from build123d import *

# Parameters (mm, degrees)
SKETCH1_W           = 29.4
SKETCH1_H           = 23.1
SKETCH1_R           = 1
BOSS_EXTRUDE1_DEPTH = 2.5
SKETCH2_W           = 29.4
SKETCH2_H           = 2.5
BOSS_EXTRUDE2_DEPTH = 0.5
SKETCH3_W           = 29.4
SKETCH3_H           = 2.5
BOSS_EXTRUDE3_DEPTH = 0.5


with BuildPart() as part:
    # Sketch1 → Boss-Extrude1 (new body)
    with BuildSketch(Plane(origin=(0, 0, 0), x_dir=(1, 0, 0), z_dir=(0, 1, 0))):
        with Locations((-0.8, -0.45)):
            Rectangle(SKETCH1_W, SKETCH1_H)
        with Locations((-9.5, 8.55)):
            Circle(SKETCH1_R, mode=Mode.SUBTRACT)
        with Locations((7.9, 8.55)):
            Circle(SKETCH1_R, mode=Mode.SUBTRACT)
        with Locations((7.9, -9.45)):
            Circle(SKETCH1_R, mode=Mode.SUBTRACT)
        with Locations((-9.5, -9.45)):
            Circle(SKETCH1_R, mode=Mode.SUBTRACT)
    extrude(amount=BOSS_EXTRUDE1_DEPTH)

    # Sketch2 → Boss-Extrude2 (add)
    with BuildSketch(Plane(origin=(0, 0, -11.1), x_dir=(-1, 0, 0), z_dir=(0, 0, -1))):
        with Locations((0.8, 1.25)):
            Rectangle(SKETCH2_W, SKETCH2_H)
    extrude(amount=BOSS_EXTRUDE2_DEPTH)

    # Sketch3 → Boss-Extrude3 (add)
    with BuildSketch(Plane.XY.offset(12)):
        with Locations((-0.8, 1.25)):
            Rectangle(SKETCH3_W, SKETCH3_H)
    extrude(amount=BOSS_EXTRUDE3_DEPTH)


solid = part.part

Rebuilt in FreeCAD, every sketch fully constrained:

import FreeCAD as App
import Part
import Sketcher

V = App.Vector
Q = App.Units.Quantity

doc = App.newDocument("Part")
body = doc.addObject("PartDesign::Body", "Body")

sketch1 = doc.addObject("Sketcher::SketchObject", "Sketch")
body.addObject(sketch1)
sketch1.AttachmentSupport = (doc.XZ_Plane, [""])
sketch1.MapMode = "FlatFace"
sketch1.addGeometry([
    Part.LineSegment(V(-15.5, -11.1, 0), V(-15.5, 12, 0)),
    Part.LineSegment(V(-15.5, 12, 0), V(13.9, 12, 0)),
    Part.LineSegment(V(13.9, 12, 0), V(13.9, -11.1, 0)),
    Part.LineSegment(V(13.9, -11.1, 0), V(-15.5, -11.1, 0)),
    Part.Circle(V(-9.5, 9.4, 0), V(0, 0, 1), 1),
    Part.Circle(V(7.9, 9.4, 0), V(0, 0, 1), 1),
    Part.Circle(V(-9.5, -8.6, 0), V(0, 0, 1), 1),
    Part.Circle(V(7.9, -8.6, 0), V(0, 0, 1), 1),
], False)
sketch1.addConstraint([
    Sketcher.Constraint("Coincident", 0, 2, 1, 1),
    Sketcher.Constraint("Coincident", 1, 2, 2, 1),
    Sketcher.Constraint("Coincident", 2, 2, 3, 1),
    Sketcher.Constraint("Coincident", 3, 2, 0, 1),
    Sketcher.Constraint("Vertical", 0),
    Sketcher.Constraint("Horizontal", 1),
    Sketcher.Constraint("Vertical", 2),
    Sketcher.Constraint("Horizontal", 3),
    Sketcher.Constraint("Equal", 4, 5),
    Sketcher.Constraint("Equal", 5, 6),
    Sketcher.Constraint("Equal", 6, 7),
    Sketcher.Constraint("Horizontal", 4, 3, 5, 3),
    Sketcher.Constraint("Horizontal", 6, 3, 7, 3),
    Sketcher.Constraint("Vertical", 4, 3, 6, 3),
    Sketcher.Constraint("Vertical", 5, 3, 7, 3),
    Sketcher.Constraint("Diameter", 4, Q("2 mm")),
    Sketcher.Constraint("DistanceX", 1, 1, 1, 2, Q("29.4 mm")),
    Sketcher.Constraint("DistanceY", 0, 1, 0, 2, Q("23.1 mm")),
    Sketcher.Constraint("DistanceY", -1, 1, 0, 2, Q("12 mm")),
    Sketcher.Constraint("DistanceY", 6, 3, 4, 3, Q("18 mm")),
    Sketcher.Constraint("DistanceX", 0, 2, 4, 3, Q("6 mm")),
    Sketcher.Constraint("DistanceX", 5, 3, 1, 2, Q("6 mm")),
    Sketcher.Constraint("DistanceX", 4, 3, -1, 1, Q("9.5 mm")),
    Sketcher.Constraint("DistanceY", -1, 1, 4, 3, Q("9.45 mm")),
])
pad1 = doc.addObject("PartDesign::Pad", "Pad")
body.addObject(pad1)
pad1.Profile = sketch1
pad1.Length = 2.5
pad1.Reversed = True

sketch2 = doc.addObject("Sketcher::SketchObject", "Sketch001")
body.addObject(sketch2)
sketch2.AttachmentSupport = (doc.XY_Plane, [""])
sketch2.MapMode = "FlatFace"
sketch2.AttachmentOffset = App.Placement(V(0, 0, -11.1), App.Rotation())
sketch2.addGeometry([
    Part.LineSegment(V(13.9, 2.5, 0), V(13.9, 0, 0)),
    Part.LineSegment(V(13.9, 0, 0), V(-15.5, 0, 0)),
    Part.LineSegment(V(-15.5, 0, 0), V(-15.5, 2.5, 0)),
    Part.LineSegment(V(-15.5, 2.5, 0), V(13.9, 2.5, 0)),
], False)
sketch2.addConstraint([
    Sketcher.Constraint("Coincident", 0, 2, 1, 1),
    Sketcher.Constraint("Coincident", 1, 2, 2, 1),
    Sketcher.Constraint("Coincident", 2, 2, 3, 1),
    Sketcher.Constraint("Coincident", 3, 2, 0, 1),
    Sketcher.Constraint("Vertical", 0),
    Sketcher.Constraint("Horizontal", 1),
    Sketcher.Constraint("Vertical", 2),
    Sketcher.Constraint("Horizontal", 3),
    Sketcher.Constraint("PointOnObject", 0, 2, -1),
    Sketcher.Constraint("DistanceX", 1, 2, 1, 1, Q("29.4 mm")),
    Sketcher.Constraint("DistanceY", 0, 2, 0, 1, Q("2.5 mm")),
    Sketcher.Constraint("DistanceX", -1, 1, 0, 2, Q("13.9 mm")),
])
pad2 = doc.addObject("PartDesign::Pad", "Pad001")
body.addObject(pad2)
pad2.Profile = sketch2
pad2.Length = 0.5
pad2.Reversed = True

sketch3 = doc.addObject("Sketcher::SketchObject", "Sketch002")
body.addObject(sketch3)
sketch3.AttachmentSupport = (doc.XY_Plane, [""])
sketch3.MapMode = "FlatFace"
sketch3.AttachmentOffset = App.Placement(V(0, 0, 12), App.Rotation())
sketch3.addGeometry([
    Part.LineSegment(V(-15.5, 2.5, 0), V(-15.5, 0, 0)),
    Part.LineSegment(V(-15.5, 0, 0), V(13.9, 0, 0)),
    Part.LineSegment(V(13.9, 0, 0), V(13.9, 2.5, 0)),
    Part.LineSegment(V(13.9, 2.5, 0), V(-15.5, 2.5, 0)),
], False)
sketch3.addConstraint([
    Sketcher.Constraint("Coincident", 0, 2, 1, 1),
    Sketcher.Constraint("Coincident", 1, 2, 2, 1),
    Sketcher.Constraint("Coincident", 2, 2, 3, 1),
    Sketcher.Constraint("Coincident", 3, 2, 0, 1),
    Sketcher.Constraint("Vertical", 0),
    Sketcher.Constraint("Horizontal", 1),
    Sketcher.Constraint("Vertical", 2),
    Sketcher.Constraint("Horizontal", 3),
    Sketcher.Constraint("PointOnObject", 0, 2, -1),
    Sketcher.Constraint("DistanceX", 1, 1, 1, 2, Q("29.4 mm")),
    Sketcher.Constraint("DistanceY", 0, 2, 0, 1, Q("2.5 mm")),
    Sketcher.Constraint("DistanceX", 0, 2, -1, 1, Q("15.5 mm")),
])
pad3 = doc.addObject("PartDesign::Pad", "Pad002")
body.addObject(pad3)
pad3.Profile = sketch3
pad3.Length = 0.5

doc.recompute()
